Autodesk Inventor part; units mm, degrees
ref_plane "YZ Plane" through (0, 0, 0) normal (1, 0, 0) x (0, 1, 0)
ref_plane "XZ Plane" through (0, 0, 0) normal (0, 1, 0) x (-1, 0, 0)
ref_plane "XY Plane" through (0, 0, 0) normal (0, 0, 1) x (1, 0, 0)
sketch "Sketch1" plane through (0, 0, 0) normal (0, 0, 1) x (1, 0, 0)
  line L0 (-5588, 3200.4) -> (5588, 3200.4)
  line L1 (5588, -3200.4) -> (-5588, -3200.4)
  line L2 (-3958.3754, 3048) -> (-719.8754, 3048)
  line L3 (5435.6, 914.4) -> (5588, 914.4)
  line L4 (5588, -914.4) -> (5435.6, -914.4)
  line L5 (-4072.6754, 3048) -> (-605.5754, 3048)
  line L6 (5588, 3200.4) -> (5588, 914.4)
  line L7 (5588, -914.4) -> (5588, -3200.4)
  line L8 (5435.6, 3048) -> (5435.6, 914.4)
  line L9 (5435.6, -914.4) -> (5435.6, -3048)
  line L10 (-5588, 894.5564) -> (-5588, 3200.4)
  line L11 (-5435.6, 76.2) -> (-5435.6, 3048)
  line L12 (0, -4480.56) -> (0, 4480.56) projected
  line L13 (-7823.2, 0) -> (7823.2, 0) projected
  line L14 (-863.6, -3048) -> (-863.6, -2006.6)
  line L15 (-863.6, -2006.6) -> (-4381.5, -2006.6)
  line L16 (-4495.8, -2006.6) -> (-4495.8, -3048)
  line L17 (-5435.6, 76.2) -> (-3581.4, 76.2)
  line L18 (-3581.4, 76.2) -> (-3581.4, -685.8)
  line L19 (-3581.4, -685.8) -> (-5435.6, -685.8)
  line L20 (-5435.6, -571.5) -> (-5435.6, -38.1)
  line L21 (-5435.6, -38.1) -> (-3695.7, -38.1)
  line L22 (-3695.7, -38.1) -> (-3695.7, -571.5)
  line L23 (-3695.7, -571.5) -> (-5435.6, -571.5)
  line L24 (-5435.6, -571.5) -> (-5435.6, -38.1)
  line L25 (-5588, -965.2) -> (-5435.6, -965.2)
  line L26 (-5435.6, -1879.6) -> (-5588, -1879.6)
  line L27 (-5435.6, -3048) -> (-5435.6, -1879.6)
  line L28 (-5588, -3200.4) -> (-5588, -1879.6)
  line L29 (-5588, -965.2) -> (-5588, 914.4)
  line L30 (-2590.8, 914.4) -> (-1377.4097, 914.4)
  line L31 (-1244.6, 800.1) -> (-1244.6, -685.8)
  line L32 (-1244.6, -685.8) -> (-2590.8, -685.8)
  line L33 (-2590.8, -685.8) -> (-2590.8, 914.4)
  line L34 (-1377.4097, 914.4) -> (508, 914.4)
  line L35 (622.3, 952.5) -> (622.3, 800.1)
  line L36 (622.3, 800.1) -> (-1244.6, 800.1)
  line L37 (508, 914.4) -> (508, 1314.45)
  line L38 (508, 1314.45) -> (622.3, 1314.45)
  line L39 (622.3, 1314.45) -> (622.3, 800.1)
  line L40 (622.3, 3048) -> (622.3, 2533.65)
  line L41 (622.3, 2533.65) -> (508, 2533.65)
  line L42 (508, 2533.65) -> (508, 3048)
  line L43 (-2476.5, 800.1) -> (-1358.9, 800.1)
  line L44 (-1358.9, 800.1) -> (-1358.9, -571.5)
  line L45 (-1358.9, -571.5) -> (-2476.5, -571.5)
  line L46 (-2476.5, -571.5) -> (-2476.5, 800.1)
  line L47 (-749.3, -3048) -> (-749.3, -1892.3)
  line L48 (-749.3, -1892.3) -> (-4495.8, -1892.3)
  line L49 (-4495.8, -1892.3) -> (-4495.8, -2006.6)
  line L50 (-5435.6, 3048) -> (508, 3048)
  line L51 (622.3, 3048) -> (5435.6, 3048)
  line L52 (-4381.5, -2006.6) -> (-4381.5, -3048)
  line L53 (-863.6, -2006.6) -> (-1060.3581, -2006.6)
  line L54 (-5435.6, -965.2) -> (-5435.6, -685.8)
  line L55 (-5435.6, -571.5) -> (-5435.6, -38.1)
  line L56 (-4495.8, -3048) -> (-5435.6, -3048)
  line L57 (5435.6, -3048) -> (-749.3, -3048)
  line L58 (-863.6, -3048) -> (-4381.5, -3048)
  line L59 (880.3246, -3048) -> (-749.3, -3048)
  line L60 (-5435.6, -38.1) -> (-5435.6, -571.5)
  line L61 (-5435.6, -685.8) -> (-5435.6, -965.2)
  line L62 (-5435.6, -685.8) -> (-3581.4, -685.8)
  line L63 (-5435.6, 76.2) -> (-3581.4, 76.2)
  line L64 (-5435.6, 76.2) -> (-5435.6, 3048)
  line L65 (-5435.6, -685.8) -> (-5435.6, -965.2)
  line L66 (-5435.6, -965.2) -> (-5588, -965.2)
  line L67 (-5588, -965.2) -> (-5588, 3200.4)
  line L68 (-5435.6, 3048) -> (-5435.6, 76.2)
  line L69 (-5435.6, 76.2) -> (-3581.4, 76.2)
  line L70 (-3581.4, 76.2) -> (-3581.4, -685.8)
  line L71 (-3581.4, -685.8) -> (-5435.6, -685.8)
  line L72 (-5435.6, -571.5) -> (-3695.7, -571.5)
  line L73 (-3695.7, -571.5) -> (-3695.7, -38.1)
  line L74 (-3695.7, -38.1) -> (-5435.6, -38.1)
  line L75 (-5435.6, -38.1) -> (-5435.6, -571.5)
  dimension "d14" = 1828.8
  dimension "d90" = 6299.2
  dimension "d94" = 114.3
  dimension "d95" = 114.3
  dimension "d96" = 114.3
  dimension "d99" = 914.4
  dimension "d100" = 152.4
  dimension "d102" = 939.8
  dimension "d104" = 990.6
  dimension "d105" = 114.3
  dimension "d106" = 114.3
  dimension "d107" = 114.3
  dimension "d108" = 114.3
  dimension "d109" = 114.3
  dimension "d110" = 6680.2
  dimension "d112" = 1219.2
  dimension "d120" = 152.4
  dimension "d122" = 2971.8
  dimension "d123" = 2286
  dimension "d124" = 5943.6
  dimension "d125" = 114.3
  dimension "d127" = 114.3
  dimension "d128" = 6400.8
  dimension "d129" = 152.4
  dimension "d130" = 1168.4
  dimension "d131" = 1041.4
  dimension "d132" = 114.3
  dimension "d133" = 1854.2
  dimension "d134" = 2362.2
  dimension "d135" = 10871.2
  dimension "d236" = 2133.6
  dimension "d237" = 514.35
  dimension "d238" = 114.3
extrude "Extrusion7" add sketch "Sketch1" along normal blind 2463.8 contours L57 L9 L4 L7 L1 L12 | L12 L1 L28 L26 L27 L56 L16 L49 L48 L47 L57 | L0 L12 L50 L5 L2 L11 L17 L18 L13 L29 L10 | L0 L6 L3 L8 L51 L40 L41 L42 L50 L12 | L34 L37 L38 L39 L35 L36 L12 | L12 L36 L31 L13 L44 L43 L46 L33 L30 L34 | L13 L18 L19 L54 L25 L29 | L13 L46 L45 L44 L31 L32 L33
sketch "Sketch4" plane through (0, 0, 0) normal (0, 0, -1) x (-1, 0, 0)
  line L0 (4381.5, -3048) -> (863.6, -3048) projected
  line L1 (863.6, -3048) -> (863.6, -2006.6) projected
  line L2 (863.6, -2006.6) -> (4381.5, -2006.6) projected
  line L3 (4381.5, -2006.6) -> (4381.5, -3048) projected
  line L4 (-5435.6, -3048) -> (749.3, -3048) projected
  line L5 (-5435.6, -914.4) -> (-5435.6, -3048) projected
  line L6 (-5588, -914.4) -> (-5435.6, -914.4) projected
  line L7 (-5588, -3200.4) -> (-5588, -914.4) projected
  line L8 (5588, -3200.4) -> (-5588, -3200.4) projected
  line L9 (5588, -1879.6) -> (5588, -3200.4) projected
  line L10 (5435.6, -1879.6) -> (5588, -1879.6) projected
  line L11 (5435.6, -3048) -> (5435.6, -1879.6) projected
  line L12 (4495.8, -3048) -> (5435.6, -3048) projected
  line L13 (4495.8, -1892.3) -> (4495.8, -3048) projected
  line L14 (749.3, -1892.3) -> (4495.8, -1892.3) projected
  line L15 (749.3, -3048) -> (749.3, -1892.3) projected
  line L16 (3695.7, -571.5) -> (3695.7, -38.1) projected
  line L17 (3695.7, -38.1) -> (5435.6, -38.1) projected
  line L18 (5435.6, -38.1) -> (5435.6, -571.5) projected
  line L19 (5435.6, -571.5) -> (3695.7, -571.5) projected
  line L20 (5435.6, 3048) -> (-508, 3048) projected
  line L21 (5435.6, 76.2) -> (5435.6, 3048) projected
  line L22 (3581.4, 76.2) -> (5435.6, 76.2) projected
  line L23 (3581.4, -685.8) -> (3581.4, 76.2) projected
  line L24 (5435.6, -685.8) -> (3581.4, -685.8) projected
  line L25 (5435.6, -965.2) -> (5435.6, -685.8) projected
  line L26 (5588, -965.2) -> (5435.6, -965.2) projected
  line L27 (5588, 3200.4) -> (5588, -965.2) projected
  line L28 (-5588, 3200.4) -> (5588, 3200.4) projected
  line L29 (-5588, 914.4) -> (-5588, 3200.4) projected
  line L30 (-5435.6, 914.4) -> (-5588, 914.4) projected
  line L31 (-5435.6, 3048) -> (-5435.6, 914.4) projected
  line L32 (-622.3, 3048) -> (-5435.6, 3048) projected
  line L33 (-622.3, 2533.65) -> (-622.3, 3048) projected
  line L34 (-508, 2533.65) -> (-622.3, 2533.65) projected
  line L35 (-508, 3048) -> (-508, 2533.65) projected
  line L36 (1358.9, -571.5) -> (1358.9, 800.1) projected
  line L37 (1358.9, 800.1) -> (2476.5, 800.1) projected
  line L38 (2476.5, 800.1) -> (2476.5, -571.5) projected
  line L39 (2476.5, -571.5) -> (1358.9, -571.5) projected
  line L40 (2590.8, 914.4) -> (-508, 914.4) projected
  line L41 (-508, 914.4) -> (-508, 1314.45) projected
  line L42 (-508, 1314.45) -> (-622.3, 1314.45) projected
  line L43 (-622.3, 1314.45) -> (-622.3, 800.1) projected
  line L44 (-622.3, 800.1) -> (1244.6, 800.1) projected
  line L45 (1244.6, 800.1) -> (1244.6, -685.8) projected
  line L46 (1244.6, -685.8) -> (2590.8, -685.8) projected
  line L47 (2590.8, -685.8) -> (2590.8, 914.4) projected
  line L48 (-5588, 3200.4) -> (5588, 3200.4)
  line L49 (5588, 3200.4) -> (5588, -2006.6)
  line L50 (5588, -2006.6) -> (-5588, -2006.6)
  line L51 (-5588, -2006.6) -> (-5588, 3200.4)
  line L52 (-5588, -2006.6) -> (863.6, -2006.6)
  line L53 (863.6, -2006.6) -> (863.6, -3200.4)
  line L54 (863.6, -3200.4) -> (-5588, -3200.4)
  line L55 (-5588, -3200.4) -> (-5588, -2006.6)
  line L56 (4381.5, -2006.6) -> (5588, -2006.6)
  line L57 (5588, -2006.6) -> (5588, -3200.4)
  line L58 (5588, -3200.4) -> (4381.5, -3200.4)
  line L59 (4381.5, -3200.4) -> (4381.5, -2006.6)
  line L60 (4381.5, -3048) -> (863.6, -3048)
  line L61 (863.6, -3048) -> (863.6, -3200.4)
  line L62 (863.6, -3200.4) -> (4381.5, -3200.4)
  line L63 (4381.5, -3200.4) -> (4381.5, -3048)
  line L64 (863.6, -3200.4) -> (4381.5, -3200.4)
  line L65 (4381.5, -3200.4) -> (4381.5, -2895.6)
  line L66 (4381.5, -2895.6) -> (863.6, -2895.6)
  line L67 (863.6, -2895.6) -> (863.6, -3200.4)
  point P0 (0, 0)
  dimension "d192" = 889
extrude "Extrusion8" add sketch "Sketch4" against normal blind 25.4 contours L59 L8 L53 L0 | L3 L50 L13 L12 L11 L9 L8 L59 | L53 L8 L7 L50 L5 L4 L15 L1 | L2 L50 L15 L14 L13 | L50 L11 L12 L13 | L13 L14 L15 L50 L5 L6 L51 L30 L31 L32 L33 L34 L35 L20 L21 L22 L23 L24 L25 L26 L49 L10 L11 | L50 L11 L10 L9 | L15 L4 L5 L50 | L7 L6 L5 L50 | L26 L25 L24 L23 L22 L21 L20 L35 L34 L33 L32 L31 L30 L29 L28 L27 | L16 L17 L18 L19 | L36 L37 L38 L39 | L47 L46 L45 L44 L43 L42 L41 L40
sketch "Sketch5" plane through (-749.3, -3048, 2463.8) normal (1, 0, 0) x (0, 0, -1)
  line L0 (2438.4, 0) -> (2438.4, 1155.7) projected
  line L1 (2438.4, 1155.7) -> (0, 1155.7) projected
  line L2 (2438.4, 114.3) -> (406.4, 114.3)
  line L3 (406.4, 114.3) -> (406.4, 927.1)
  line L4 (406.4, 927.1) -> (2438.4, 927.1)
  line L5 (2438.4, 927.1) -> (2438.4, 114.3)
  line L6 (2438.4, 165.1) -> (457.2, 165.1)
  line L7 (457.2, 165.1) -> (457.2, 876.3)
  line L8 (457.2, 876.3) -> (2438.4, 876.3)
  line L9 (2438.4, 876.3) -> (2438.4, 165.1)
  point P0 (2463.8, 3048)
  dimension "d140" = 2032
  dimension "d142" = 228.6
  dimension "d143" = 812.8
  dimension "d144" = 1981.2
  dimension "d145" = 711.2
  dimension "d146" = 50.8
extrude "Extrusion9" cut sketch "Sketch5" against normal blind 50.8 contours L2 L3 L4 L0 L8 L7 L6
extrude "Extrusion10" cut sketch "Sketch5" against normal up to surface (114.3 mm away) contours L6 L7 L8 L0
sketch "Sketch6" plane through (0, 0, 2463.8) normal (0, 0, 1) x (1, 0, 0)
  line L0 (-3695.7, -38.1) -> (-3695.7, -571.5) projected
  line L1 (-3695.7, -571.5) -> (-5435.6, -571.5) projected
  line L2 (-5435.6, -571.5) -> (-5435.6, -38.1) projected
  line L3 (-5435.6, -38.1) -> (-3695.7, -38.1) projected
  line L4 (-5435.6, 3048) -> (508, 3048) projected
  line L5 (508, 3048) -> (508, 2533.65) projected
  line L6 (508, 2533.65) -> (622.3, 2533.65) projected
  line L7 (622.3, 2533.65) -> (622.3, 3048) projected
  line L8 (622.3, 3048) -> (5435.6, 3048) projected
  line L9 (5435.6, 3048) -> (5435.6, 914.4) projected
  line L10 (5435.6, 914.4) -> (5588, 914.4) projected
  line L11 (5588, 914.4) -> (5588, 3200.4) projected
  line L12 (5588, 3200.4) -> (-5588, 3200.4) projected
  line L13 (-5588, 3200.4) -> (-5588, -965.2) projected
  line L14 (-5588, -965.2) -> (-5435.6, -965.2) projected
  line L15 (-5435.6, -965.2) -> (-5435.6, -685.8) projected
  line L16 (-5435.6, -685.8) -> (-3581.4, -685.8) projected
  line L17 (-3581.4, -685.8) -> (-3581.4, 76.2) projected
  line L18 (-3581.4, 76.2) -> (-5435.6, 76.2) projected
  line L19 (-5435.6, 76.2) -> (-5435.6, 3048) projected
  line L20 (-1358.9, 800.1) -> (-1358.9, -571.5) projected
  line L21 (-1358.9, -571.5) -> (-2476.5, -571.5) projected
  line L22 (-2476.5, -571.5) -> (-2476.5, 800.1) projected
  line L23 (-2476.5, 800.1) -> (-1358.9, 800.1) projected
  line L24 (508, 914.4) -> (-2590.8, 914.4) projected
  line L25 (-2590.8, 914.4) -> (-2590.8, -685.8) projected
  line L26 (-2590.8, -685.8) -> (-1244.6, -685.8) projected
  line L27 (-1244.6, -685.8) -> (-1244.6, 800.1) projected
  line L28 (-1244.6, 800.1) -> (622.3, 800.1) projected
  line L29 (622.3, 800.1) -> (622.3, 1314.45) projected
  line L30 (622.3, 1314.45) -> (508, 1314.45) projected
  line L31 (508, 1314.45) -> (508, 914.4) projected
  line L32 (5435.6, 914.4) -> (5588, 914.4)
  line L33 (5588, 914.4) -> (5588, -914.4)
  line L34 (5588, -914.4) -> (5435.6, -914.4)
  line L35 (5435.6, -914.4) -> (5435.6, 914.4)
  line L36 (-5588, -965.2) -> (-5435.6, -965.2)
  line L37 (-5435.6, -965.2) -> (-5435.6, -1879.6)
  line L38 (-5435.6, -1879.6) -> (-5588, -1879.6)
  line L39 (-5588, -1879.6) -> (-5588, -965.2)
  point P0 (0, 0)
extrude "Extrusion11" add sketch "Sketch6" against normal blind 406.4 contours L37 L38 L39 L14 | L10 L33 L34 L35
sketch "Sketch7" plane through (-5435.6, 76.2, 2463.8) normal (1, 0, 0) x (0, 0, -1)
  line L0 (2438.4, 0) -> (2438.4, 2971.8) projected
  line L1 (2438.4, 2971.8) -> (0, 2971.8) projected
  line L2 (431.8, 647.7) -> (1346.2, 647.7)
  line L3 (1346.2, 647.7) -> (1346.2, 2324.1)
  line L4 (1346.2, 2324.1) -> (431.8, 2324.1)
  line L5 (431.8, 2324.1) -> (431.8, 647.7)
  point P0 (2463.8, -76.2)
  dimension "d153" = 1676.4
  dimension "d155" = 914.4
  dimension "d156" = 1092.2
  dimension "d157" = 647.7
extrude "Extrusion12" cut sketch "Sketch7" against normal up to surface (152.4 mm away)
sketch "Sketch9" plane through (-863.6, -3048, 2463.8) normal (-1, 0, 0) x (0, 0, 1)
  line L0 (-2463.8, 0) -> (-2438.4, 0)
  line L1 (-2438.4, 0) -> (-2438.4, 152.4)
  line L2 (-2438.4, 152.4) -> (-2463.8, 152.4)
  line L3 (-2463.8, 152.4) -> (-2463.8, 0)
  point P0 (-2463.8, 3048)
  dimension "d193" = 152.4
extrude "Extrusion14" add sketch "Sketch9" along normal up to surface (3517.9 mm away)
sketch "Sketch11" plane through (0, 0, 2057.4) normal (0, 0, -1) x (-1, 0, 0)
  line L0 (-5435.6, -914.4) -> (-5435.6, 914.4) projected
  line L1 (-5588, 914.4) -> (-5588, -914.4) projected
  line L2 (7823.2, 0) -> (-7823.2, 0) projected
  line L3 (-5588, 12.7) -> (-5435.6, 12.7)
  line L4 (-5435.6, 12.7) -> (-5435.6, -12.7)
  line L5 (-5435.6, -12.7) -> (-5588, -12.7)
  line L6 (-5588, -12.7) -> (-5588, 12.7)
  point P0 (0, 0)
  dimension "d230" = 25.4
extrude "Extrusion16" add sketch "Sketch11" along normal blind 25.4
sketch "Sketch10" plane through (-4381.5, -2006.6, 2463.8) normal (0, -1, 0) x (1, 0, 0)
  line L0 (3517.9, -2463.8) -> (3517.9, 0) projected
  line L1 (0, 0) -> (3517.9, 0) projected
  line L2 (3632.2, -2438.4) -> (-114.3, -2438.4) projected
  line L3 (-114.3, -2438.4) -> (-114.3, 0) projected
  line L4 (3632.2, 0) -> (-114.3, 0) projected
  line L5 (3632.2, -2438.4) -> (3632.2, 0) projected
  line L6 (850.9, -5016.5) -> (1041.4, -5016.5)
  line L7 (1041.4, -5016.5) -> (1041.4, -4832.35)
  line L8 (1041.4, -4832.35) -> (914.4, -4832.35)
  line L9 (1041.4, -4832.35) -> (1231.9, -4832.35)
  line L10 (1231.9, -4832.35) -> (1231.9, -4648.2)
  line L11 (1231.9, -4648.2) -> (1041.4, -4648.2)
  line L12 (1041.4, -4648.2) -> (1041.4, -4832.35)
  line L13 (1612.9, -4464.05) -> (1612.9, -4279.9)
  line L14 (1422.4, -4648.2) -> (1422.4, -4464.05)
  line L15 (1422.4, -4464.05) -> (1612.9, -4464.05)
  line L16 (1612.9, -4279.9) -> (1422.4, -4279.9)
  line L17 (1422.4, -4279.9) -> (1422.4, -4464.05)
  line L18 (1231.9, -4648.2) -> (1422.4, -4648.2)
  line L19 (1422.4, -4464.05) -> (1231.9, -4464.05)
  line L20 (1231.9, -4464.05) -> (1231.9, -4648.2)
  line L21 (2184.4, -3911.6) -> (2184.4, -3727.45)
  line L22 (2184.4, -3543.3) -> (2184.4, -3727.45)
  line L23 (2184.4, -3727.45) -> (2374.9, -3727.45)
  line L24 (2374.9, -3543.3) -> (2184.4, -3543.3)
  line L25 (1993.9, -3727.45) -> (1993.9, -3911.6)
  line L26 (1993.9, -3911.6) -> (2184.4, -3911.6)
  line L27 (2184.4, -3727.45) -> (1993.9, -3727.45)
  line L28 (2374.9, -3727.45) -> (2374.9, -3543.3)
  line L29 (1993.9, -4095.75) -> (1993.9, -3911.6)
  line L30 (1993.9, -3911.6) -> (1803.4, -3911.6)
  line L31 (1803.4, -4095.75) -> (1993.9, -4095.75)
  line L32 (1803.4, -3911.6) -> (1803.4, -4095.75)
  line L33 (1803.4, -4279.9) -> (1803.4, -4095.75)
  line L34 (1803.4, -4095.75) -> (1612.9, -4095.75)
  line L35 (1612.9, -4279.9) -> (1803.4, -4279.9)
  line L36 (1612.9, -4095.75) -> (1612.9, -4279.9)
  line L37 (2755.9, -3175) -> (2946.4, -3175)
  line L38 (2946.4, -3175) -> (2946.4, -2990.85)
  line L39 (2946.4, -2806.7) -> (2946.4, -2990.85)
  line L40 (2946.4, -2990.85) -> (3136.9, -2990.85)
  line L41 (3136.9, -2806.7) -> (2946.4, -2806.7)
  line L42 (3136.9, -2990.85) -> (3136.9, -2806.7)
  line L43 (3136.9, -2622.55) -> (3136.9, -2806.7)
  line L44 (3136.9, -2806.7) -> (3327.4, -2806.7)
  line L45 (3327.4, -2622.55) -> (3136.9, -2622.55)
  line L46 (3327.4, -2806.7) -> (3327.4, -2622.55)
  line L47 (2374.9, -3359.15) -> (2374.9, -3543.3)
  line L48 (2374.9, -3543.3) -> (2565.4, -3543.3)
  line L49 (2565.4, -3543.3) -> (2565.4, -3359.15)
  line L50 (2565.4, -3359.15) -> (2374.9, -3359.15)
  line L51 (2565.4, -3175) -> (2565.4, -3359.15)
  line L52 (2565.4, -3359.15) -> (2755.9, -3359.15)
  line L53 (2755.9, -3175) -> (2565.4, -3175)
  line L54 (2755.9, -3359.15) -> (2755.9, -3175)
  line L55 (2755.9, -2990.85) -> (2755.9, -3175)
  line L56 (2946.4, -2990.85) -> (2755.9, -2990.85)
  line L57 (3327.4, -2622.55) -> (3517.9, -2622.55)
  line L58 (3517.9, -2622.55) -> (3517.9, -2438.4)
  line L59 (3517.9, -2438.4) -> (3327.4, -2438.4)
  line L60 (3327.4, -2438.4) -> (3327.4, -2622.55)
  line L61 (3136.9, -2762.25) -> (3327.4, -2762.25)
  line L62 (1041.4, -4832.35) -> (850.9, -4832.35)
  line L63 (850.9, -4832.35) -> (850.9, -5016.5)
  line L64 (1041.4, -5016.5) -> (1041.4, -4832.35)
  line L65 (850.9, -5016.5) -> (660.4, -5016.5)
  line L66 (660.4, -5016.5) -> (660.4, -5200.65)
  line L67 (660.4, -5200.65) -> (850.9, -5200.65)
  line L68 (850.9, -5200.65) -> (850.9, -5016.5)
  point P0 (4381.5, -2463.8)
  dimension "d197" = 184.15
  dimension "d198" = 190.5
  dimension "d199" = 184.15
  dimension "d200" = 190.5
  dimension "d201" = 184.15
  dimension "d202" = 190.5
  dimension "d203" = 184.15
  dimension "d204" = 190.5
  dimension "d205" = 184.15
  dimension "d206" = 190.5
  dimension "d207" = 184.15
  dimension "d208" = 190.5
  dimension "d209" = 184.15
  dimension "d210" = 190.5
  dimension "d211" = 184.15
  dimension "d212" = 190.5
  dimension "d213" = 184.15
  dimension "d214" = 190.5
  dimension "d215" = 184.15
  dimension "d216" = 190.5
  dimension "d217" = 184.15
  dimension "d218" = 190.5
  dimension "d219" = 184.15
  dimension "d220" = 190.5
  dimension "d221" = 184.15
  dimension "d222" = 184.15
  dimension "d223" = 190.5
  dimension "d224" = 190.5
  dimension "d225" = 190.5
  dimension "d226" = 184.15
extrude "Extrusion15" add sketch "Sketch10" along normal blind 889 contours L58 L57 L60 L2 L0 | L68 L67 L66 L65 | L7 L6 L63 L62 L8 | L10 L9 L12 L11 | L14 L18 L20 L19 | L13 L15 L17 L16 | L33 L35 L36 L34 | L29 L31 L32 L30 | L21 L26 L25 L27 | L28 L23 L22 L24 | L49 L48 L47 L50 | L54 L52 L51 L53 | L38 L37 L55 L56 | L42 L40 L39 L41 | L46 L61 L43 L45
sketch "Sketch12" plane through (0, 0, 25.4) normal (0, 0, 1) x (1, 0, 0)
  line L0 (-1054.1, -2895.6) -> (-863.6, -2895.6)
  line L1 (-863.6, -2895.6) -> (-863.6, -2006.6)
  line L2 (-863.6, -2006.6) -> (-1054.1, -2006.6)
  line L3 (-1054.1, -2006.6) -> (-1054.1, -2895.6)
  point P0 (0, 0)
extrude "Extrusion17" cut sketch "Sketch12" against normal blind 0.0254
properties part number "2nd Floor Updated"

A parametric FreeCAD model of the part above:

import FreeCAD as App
import Part
import Sketcher

V = App.Vector
Q = App.Units.Quantity


def add_polygon(sketch, points):
    """Adds a closed chain of lines whose ends are joined by coincident constraints."""
    first, n = sketch.GeometryCount, len(points)
    for a, b in zip(points, points[1:] + points[:1]):
        sketch.addGeometry(Part.LineSegment(App.Vector(*a, 0), App.Vector(*b, 0)), False)
    for i in range(n):
        sketch.addConstraint(Sketcher.Constraint("Coincident", first + i, 2, first + (i + 1) % n, 1))

doc = App.newDocument("Part")
body = doc.addObject("PartDesign::Body", "Body")
body.AllowCompound = True

sketch1 = body.newObject("Sketcher::SketchObject", "Sketch")
sketch1.AttachmentSupport = (doc.getObject("XY_Plane"), [""])
sketch1.MapMode = "FlatFace"
add_polygon(sketch1, [(-749.3, -3048), (-749.3, -1892.3), (-4495.8, -1892.3), (-4495.8, -3048), (-5435.6, -3048), (-5435.6, -1879.6), (-5588, -1879.6), (-5588, -3200.4), (5588, -3200.4), (5588, -914.4), (5435.6, -914.4), (5435.6, -3048)])
add_polygon(sketch1, [(-863.6, -3048), (-4381.5, -3048), (-4381.5, -2006.6), (-863.6, -2006.6)])
add_polygon(sketch1, [(-5588, 3200.4), (-5588, -965.2), (-5435.6, -965.2), (-5435.6, -685.8), (-3581.4, -685.8), (-3581.4, 76.2), (-5435.6, 76.2), (-5435.6, 3048), (508, 3048), (508, 2533.65), (622.3, 2533.65), (622.3, 3048), (5435.6, 3048), (5435.6, 914.4), (5588, 914.4), (5588, 3200.4)])
add_polygon(sketch1, [(-5435.6, -571.5), (-5435.6, -38.1), (-3695.7, -38.1), (-3695.7, -571.5)])
add_polygon(sketch1, [(508, 914.4), (-2590.8, 914.4), (-2590.8, -685.8), (-1244.6, -685.8), (-1244.6, 800.1), (622.3, 800.1), (622.3, 1314.45), (508, 1314.45)])
add_polygon(sketch1, [(-1358.9, 800.1), (-1358.9, -571.5), (-2476.5, -571.5), (-2476.5, 800.1)])
sketch1.addConstraint([
    Sketcher.Constraint("Vertical", 0),
    Sketcher.Constraint("Horizontal", 1),
    Sketcher.Constraint("Vertical", 2),
    Sketcher.Constraint("Horizontal", 3),
    Sketcher.Constraint("Vertical", 4),
    Sketcher.Constraint("Horizontal", 5),
    Sketcher.Constraint("Vertical", 6),
    Sketcher.Constraint("Horizontal", 7),
    Sketcher.Constraint("Vertical", 8),
    Sketcher.Constraint("Horizontal", 9),
    Sketcher.Constraint("Vertical", 10),
    Sketcher.Constraint("Horizontal", 11),
    Sketcher.Constraint("Horizontal", 12),
    Sketcher.Constraint("Vertical", 13),
    Sketcher.Constraint("Horizontal", 14),
    Sketcher.Constraint("Vertical", 15),
    Sketcher.Constraint("Vertical", 16),
    Sketcher.Constraint("Horizontal", 17),
    Sketcher.Constraint("Vertical", 18),
    Sketcher.Constraint("Horizontal", 19),
    Sketcher.Constraint("Vertical", 20),
    Sketcher.Constraint("Horizontal", 21),
    Sketcher.Constraint("Vertical", 22),
    Sketcher.Constraint("Horizontal", 23),
    Sketcher.Constraint("Vertical", 24),
    Sketcher.Constraint("Horizontal", 25),
    Sketcher.Constraint("Vertical", 26),
    Sketcher.Constraint("Horizontal", 27),
    Sketcher.Constraint("Vertical", 28),
    Sketcher.Constraint("Horizontal", 29),
    Sketcher.Constraint("Vertical", 30),
    Sketcher.Constraint("Horizontal", 31),
    Sketcher.Constraint("Vertical", 32),
    Sketcher.Constraint("Horizontal", 33),
    Sketcher.Constraint("Vertical", 34),
    Sketcher.Constraint("Horizontal", 35),
    Sketcher.Constraint("Horizontal", 36),
    Sketcher.Constraint("Vertical", 37),
    Sketcher.Constraint("Horizontal", 38),
    Sketcher.Constraint("Vertical", 39),
    Sketcher.Constraint("Horizontal", 40),
    Sketcher.Constraint("Vertical", 41),
    Sketcher.Constraint("Horizontal", 42),
    Sketcher.Constraint("Vertical", 43),
    Sketcher.Constraint("Vertical", 44),
    Sketcher.Constraint("Horizontal", 45),
    Sketcher.Constraint("Vertical", 46),
    Sketcher.Constraint("Horizontal", 47),
    Sketcher.Constraint("Symmetric", 10, 2, 22, 2, -1, 1),
    Sketcher.Constraint("Symmetric", 3, 2, 27, 2, -1, 1),
    Sketcher.Constraint("Symmetric", 6, 2, 30, 2, -1, 1),
    Sketcher.Constraint("Symmetric", 3, 2, 10, 2, -2),
    Sketcher.Constraint("Symmetric", 8, 2, 29, 2, -1),
    Sketcher.Constraint("Horizontal", 11, 2, 12, 2),
    Sketcher.Constraint("Horizontal", 29, 2, 36, 2),
    Sketcher.Constraint("Horizontal", 19, 2, 37, 2),
    Sketcher.Constraint("Horizontal", 35, 2, 44, 2),
    Sketcher.Constraint("Horizontal", 40, 2, 46, 2),
    Sketcher.Constraint("Vertical", 6, 2, 16, 2),
    Sketcher.Constraint("Vertical", 4, 2, 17, 2),
    Sketcher.Constraint("Vertical", 22, 2, 32, 2),
    Sketcher.Constraint("Vertical", 26, 2, 40, 2),
    Sketcher.Constraint("Vertical", 24, 2, 42, 2),
    Sketcher.Constraint("Equal", 26, 41),
    Sketcher.Constraint("DistanceX", 3, 2, 3, 1, Q("37 in")),
    Sketcher.Constraint("DistanceX", 5, 2, 5, 1, Q("6 in")),
    Sketcher.Constraint("DistanceX", 19, 1, 19, 2, Q("73 in")),
    Sketcher.Constraint("DistanceX", 23, 1, 23, 2, Q("234 in")),
    Sketcher.Constraint("DistanceY", 4, 1, 4, 2, Q("46 in")),
    Sketcher.Constraint("DistanceY", 8, 1, 8, 2, Q("90 in")),
    Sketcher.Constraint("DistanceY", 10, 2, 10, 1, Q("84 in")),
    Sketcher.Constraint("DistanceY", 13, 1, 13, 2, Q("41 in")),
    Sketcher.Constraint("DistanceY", 22, 1, 22, 2, Q("117 in")),
    Sketcher.Constraint("DistanceX", 25, 1, 25, 2, Q("4.5 in")),
    Sketcher.Constraint("DistanceY", 8, 2, -1, 1, Q("36 in")),
    Sketcher.Constraint("DistanceY", 5, 2, 16, 2, Q("36 in")),
    Sketcher.Constraint("DistanceX", 20, 2, 36, 2, Q("39 in")),
    Sketcher.Constraint("DistanceY", 41, 2, 25, 2, Q("48 in")),
    Sketcher.Constraint("DistanceX", 34, 2, 45, 2, Q("48 in")),
    Sketcher.Constraint("DistanceY", 24, 2, 24, 1, Q("20.25 in")),
    Sketcher.Constraint("DistanceX", 2, 2, 12, 2, Q("4.5 in")),
    Sketcher.Constraint("DistanceY", 13, 2, 1, 2, Q("4.5 in")),
    Sketcher.Constraint("DistanceX", 14, 2, 0, 2, Q("4.5 in")),
    Sketcher.Constraint("DistanceY", 32, 2, 21, 2, Q("4.5 in")),
    Sketcher.Constraint("DistanceX", 33, 2, 20, 2, Q("4.5 in")),
    Sketcher.Constraint("DistanceY", 19, 2, 34, 2, Q("4.5 in")),
    Sketcher.Constraint("DistanceX", 44, 2, 38, 2, Q("4.5 in")),
    Sketcher.Constraint("DistanceX", 7, 1, 7, 2, Q("440 in")),
    Sketcher.Constraint("DistanceX", 38, 1, 38, 2, Q("53 in")),
    Sketcher.Constraint("DistanceY", 18, 1, 18, 2, Q("11 in")),
    Sketcher.Constraint("DistanceX", 1, 2, 1, 1, Q("147.5 in")),
])
pad1 = body.newObject("PartDesign::Pad", "Pad")
pad1.Profile = sketch1
pad1.Length = Q("97 in")

sketch2 = body.newObject("Sketcher::SketchObject", "Sketch001")
sketch2.AttachmentSupport = (doc.getObject("XY_Plane"), [""])
sketch2.MapMode = "FlatFace"
add_polygon(sketch2, [(-5588, -3200.4), (-5588, 3200.4), (5588, 3200.4), (5588, -3200.4)])
add_polygon(sketch2, [(-4381.5, -3048), (-863.6, -3048), (-863.6, -2006.6), (-4381.5, -2006.6)])
sketch2.addConstraint([
    Sketcher.Constraint("Vertical", 0),
    Sketcher.Constraint("Horizontal", 1),
    Sketcher.Constraint("Vertical", 2),
    Sketcher.Constraint("Horizontal", 3),
    Sketcher.Constraint("Horizontal", 4),
    Sketcher.Constraint("Vertical", 5),
    Sketcher.Constraint("Horizontal", 6),
    Sketcher.Constraint("Vertical", 7),
    Sketcher.Constraint("Symmetric", 0, 2, 2, 2, -1, 1),
    Sketcher.Constraint("DistanceX", 1, 1, 1, 2, Q("440 in")),
    Sketcher.Constraint("DistanceY", 0, 1, 0, 2, Q("252 in")),
    Sketcher.Constraint("DistanceY", 5, 1, 5, 2, Q("41 in")),
    Sketcher.Constraint("DistanceX", 4, 1, 4, 2, Q("138.5 in")),
    Sketcher.Constraint("DistanceX", 4, 2, -1, 1, Q("34 in")),
    Sketcher.Constraint("DistanceY", 4, 2, -1, 1, Q("120 in")),
])
pad2 = body.newObject("PartDesign::Pad", "Pad001")
pad2.Profile = sketch2
pad2.Length = Q("1 in")

sketch3 = body.newObject("Sketcher::SketchObject", "Sketch002")
sketch3.AttachmentSupport = (doc.getObject("YZ_Plane"), [""])
sketch3.MapMode = "FlatFace"
sketch3.AttachmentOffset = App.Placement(V(0, 0, -29.5 * 25.4), App.Rotation())
add_polygon(sketch3, [(-2933.7, 2057.4), (-2933.7, 25.4), (-2882.9, 25.4), (-2882.9, 2006.6), (-2171.7, 2006.6), (-2171.7, 25.4), (-2120.9, 25.4), (-2120.9, 2057.4)])
sketch3.addConstraint([
    Sketcher.Constraint("Vertical", 0),
    Sketcher.Constraint("Horizontal", 1),
    Sketcher.Constraint("Vertical", 2),
    Sketcher.Constraint("Horizontal", 3),
    Sketcher.Constraint("Vertical", 4),
    Sketcher.Constraint("Horizontal", 5),
    Sketcher.Constraint("Vertical", 6),
    Sketcher.Constraint("Horizontal", 7),
    Sketcher.Constraint("Horizontal", 1, 2, 4, 2),
    Sketcher.Constraint("Equal", 1, 5),
    Sketcher.Constraint("DistanceX", 1, 1, 1, 2, Q("2 in")),
    Sketcher.Constraint("DistanceX", 3, 1, 3, 2, Q("28 in")),
    Sketcher.Constraint("DistanceY", 0, 2, 0, 1, Q("80 in")),
    Sketcher.Constraint("DistanceY", 2, 1, 2, 2, Q("78 in")),
    Sketcher.Constraint("DistanceY", -1, 1, 0, 2, Q("1 in")),
    Sketcher.Constraint("DistanceX", 0, 2, -1, 1, Q("115.5 in")),
])
pocket1 = body.newObject("PartDesign::Pocket", "Pocket")
pocket1.Profile = sketch3
pocket1.Length = Q("2 in")

sketch4 = body.newObject("Sketcher::SketchObject", "Sketch003")
sketch4.AttachmentSupport = (doc.getObject("YZ_Plane"), [""])
sketch4.MapMode = "FlatFace"
sketch4.AttachmentOffset = App.Placement(V(0, 0, -29.5 * 25.4), App.Rotation())
add_polygon(sketch4, [(-2882.9, 2006.6), (-2882.9, 25.4), (-2171.7, 25.4), (-2171.7, 2006.6)])
sketch4.addConstraint([
    Sketcher.Constraint("Vertical", 0),
    Sketcher.Constraint("Horizontal", 1),
    Sketcher.Constraint("Vertical", 2),
    Sketcher.Constraint("Horizontal", 3),
    Sketcher.Constraint("DistanceX", 1, 1, 1, 2, Q("28 in")),
    Sketcher.Constraint("DistanceY", 0, 2, 0, 1, Q("78 in")),
    Sketcher.Constraint("DistanceY", -1, 1, 0, 2, Q("1 in")),
    Sketcher.Constraint("DistanceX", 0, 2, -1, 1, Q("113.5 in")),
])
pocket2 = body.newObject("PartDesign::Pocket", "Pocket001")
pocket2.Profile = sketch4
pocket2.Length = Q("4.5 in")

sketch5 = body.newObject("Sketcher::SketchObject", "Sketch004")
sketch5.AttachmentSupport = (doc.getObject("XY_Plane"), [""])
sketch5.MapMode = "FlatFace"
sketch5.AttachmentOffset = App.Placement(V(0, 0, 97 * 25.4), App.Rotation())
add_polygon(sketch5, [(-5435.6, -1879.6), (-5435.6, -965.2), (-5588, -965.2), (-5588, -1879.6)])
add_polygon(sketch5, [(5588, 914.4), (5435.6, 914.4), (5435.6, -914.4), (5588, -914.4)])
sketch5.addConstraint([
    Sketcher.Constraint("Vertical", 0),
    Sketcher.Constraint("Horizontal", 1),
    Sketcher.Constraint("Vertical", 2),
    Sketcher.Constraint("Horizontal", 3),
    Sketcher.Constraint("Horizontal", 4),
    Sketcher.Constraint("Vertical", 5),
    Sketcher.Constraint("Horizontal", 6),
    Sketcher.Constraint("Vertical", 7),
    Sketcher.Constraint("Equal", 3, 4),
    Sketcher.Constraint("DistanceX", 1, 2, 1, 1, Q("6 in")),
    Sketcher.Constraint("DistanceY", 0, 1, 0, 2, Q("36 in")),
    Sketcher.Constraint("DistanceY", 5, 2, 5, 1, Q("72 in")),
    Sketcher.Constraint("DistanceX", 0, 2, -1, 1, Q("214 in")),
    Sketcher.Constraint("DistanceY", 0, 2, -1, 1, Q("38 in")),
    Sketcher.Constraint("DistanceX", -1, 1, 4, 2, Q("214 in")),
    Sketcher.Constraint("DistanceY", -1, 1, 4, 2, Q("36 in")),
])
pad3 = body.newObject("PartDesign::Pad", "Pad002")
pad3.Profile = sketch5
pad3.Length = Q("16 in")
pad3.Reversed = True

sketch6 = body.newObject("Sketcher::SketchObject", "Sketch005")
sketch6.AttachmentSupport = (doc.getObject("YZ_Plane"), [""])
sketch6.MapMode = "FlatFace"
sketch6.AttachmentOffset = App.Placement(V(0, 0, -214 * 25.4), App.Rotation())
add_polygon(sketch6, [(2400.3, 2032), (723.9, 2032), (723.9, 1117.6), (2400.3, 1117.6)])
sketch6.addConstraint([
    Sketcher.Constraint("Horizontal", 0),
    Sketcher.Constraint("Vertical", 1),
    Sketcher.Constraint("Horizontal", 2),
    Sketcher.Constraint("Vertical", 3),
    Sketcher.Constraint("DistanceX", 0, 2, 0, 1, Q("66 in")),
    Sketcher.Constraint("DistanceY", 1, 2, 1, 1, Q("36 in")),
    Sketcher.Constraint("DistanceY", -1, 1, 0, 2, Q("80 in")),
    Sketcher.Constraint("DistanceX", -1, 1, 0, 2, Q("28.5 in")),
])
pocket3 = body.newObject("PartDesign::Pocket", "Pocket002")
pocket3.Profile = sketch6
pocket3.Length = Q("6 in")

sketch7 = body.newObject("Sketcher::SketchObject", "Sketch006")
sketch7.AttachmentSupport = (doc.getObject("YZ_Plane"), [""])
sketch7.MapMode = "FlatFace"
sketch7.AttachmentOffset = App.Placement(V(0, 0, -34 * 25.4), App.Rotation())
add_polygon(sketch7, [(-2895.6, 0), (-3048, 0), (-3048, 25.4), (-2895.6, 25.4)])
sketch7.addConstraint([
    Sketcher.Constraint("Horizontal", 0),
    Sketcher.Constraint("Vertical", 1),
    Sketcher.Constraint("Horizontal", 2),
    Sketcher.Constraint("Vertical", 3),
    Sketcher.Constraint("PointOnObject", 0, 2, -1),
    Sketcher.Constraint("DistanceX", 0, 2, 0, 1, Q("6 in")),
    Sketcher.Constraint("DistanceY", 1, 1, 1, 2, Q("1 in")),
    Sketcher.Constraint("DistanceX", 0, 2, -1, 1, Q("120 in")),
])
pad4 = body.newObject("PartDesign::Pad", "Pad003")
pad4.Profile = sketch7
pad4.Length = Q("138.5 in")
pad4.Reversed = True

sketch8 = body.newObject("Sketcher::SketchObject", "Sketch007")
sketch8.AttachmentSupport = (doc.getObject("XY_Plane"), [""])
sketch8.MapMode = "FlatFace"
sketch8.AttachmentOffset = App.Placement(V(0, 0, 81 * 25.4), App.Rotation())
add_polygon(sketch8, [(5588, -12.7), (5435.6, -12.7), (5435.6, 12.7), (5588, 12.7)])
sketch8.addConstraint([
    Sketcher.Constraint("Horizontal", 0),
    Sketcher.Constraint("Vertical", 1),
    Sketcher.Constraint("Horizontal", 2),
    Sketcher.Constraint("Vertical", 3),
    Sketcher.Constraint("DistanceY", 1, 1, 1, 2, Q("1 in")),
    Sketcher.Constraint("DistanceX", 0, 2, 0, 1, Q("6 in")),
    Sketcher.Constraint("DistanceX", -1, 1, 0, 2, Q("214 in")),
    Sketcher.Constraint("DistanceY", 0, 2, -1, 1, Q("0.5 in")),
])
pad5 = body.newObject("PartDesign::Pad", "Pad004")
pad5.Profile = sketch8
pad5.Length = Q("1 in")
pad5.Reversed = True

sketch9 = body.newObject("Sketcher::SketchObject", "Sketch008")
sketch9.AttachmentSupport = (doc.getObject("XZ_Plane"), [""])
sketch9.MapMode = "FlatFace"
sketch9.AttachmentOffset = App.Placement(V(0, 0, 79 * 25.4), App.Rotation())
add_polygon(sketch9, [(-863.6, -158.75), (-863.6, 25.4), (-1054.1, 25.4), (-1054.1, -158.75)])
add_polygon(sketch9, [(-3530.6, -2736.85), (-3530.6, -2552.7), (-3721.1, -2552.7), (-3721.1, -2736.85)])
add_polygon(sketch9, [(-3340.1, -2552.7), (-3340.1, -2368.55), (-3530.6, -2368.55), (-3530.6, -2552.7)])
add_polygon(sketch9, [(-3149.6, -2368.55), (-3149.6, -2184.4), (-3340.1, -2184.4), (-3340.1, -2368.55)])
add_polygon(sketch9, [(-2959.1, -2184.4), (-2959.1, -2000.25), (-3149.6, -2000.25), (-3149.6, -2184.4)])
add_polygon(sketch9, [(-2768.6, -2000.25), (-2768.6, -1816.1), (-2959.1, -1816.1), (-2959.1, -2000.25)])
add_polygon(sketch9, [(-2578.1, -1816.1), (-2578.1, -1631.95), (-2768.6, -1631.95), (-2768.6, -1816.1)])
add_polygon(sketch9, [(-2387.6, -1631.95), (-2387.6, -1447.8), (-2578.1, -1447.8), (-2578.1, -1631.95)])
add_polygon(sketch9, [(-2197.1, -1447.8), (-2197.1, -1263.65), (-2387.6, -1263.65), (-2387.6, -1447.8)])
add_polygon(sketch9, [(-2006.6, -1263.65), (-2006.6, -1079.5), (-2197.1, -1079.5), (-2197.1, -1263.65)])
add_polygon(sketch9, [(-1816.1, -1079.5), (-1816.1, -895.35), (-2006.6, -895.35), (-2006.6, -1079.5)])
add_polygon(sketch9, [(-1625.6, -895.35), (-1625.6, -711.2), (-1816.1, -711.2), (-1816.1, -895.35)])
add_polygon(sketch9, [(-1435.1, -711.2), (-1435.1, -527.05), (-1625.6, -527.05), (-1625.6, -711.2)])
add_polygon(sketch9, [(-1244.6, -527.05), (-1244.6, -342.9), (-1435.1, -342.9), (-1435.1, -527.05)])
add_polygon(sketch9, [(-1054.1, -298.45), (-1054.1, -158.75), (-1244.6, -158.75), (-1244.6, -298.45)])
sketch9.addConstraint([
    Sketcher.Constraint("Vertical", 0),
    Sketcher.Constraint("Horizontal", 1),
    Sketcher.Constraint("Vertical", 2),
    Sketcher.Constraint("Horizontal", 3),
    Sketcher.Constraint("Vertical", 4),
    Sketcher.Constraint("Horizontal", 5),
    Sketcher.Constraint("Vertical", 6),
    Sketcher.Constraint("Horizontal", 7),
    Sketcher.Constraint("Vertical", 8),
    Sketcher.Constraint("Horizontal", 9),
    Sketcher.Constraint("Vertical", 10),
    Sketcher.Constraint("Horizontal", 11),
    Sketcher.Constraint("Vertical", 12),
    Sketcher.Constraint("Horizontal", 13),
    Sketcher.Constraint("Vertical", 14),
    Sketcher.Constraint("Horizontal", 15),
    Sketcher.Constraint("Vertical", 16),
    Sketcher.Constraint("Horizontal", 17),
    Sketcher.Constraint("Vertical", 18),
    Sketcher.Constraint("Horizontal", 19),
    Sketcher.Constraint("Vertical", 20),
    Sketcher.Constraint("Horizontal", 21),
    Sketcher.Constraint("Vertical", 22),
    Sketcher.Constraint("Horizontal", 23),
    Sketcher.Constraint("Vertical", 24),
    Sketcher.Constraint("Horizontal", 25),
    Sketcher.Constraint("Vertical", 26),
    Sketcher.Constraint("Horizontal", 27),
    Sketcher.Constraint("Vertical", 28),
    Sketcher.Constraint("Horizontal", 29),
    Sketcher.Constraint("Vertical", 30),
    Sketcher.Constraint("Horizontal", 31),
    Sketcher.Constraint("Vertical", 32),
    Sketcher.Constraint("Horizontal", 33),
    Sketcher.Constraint("Vertical", 34),
    Sketcher.Constraint("Horizontal", 35),
    Sketcher.Constraint("Vertical", 36),
    Sketcher.Constraint("Horizontal", 37),
    Sketcher.Constraint("Vertical", 38),
    Sketcher.Constraint("Horizontal", 39),
    Sketcher.Constraint("Vertical", 40),
    Sketcher.Constraint("Horizontal", 41),
    Sketcher.Constraint("Vertical", 42),
    Sketcher.Constraint("Horizontal", 43),
    Sketcher.Constraint("Vertical", 44),
    Sketcher.Constraint("Horizontal", 45),
    Sketcher.Constraint("Vertical", 46),
    Sketcher.Constraint("Horizontal", 47),
    Sketcher.Constraint("Vertical", 48),
    Sketcher.Constraint("Horizontal", 49),
    Sketcher.Constraint("Vertical", 50),
    Sketcher.Constraint("Horizontal", 51),
    Sketcher.Constraint("Vertical", 52),
    Sketcher.Constraint("Horizontal", 53),
    Sketcher.Constraint("Vertical", 54),
    Sketcher.Constraint("Horizontal", 55),
    Sketcher.Constraint("Vertical", 56),
    Sketcher.Constraint("Horizontal", 57),
    Sketcher.Constraint("Vertical", 58),
    Sketcher.Constraint("Horizontal", 59),
    Sketcher.Constraint("Coincident", 10, 2, 4, 2),
    Sketcher.Constraint("Coincident", 14, 2, 8, 2),
    Sketcher.Constraint("Coincident", 18, 2, 12, 2),
    Sketcher.Constraint("Coincident", 22, 2, 16, 2),
    Sketcher.Constraint("Coincident", 26, 2, 20, 2),
    Sketcher.Constraint("Coincident", 30, 2, 24, 2),
    Sketcher.Constraint("Coincident", 34, 2, 28, 2),
    Sketcher.Constraint("Coincident", 38, 2, 32, 2),
    Sketcher.Constraint("Coincident", 42, 2, 36, 2),
    Sketcher.Constraint("Coincident", 46, 2, 40, 2),
    Sketcher.Constraint("Coincident", 50, 2, 44, 2),
    Sketcher.Constraint("Coincident", 54, 2, 48, 2),
    Sketcher.Constraint("Coincident", 56, 2, 2, 2),
    Sketcher.Constraint("Vertical", 55, 2, 57, 2),
    Sketcher.Constraint("Equal", 3, 5),
    Sketcher.Constraint("Equal", 7, 9),
    Sketcher.Constraint("Equal", 11, 13),
    Sketcher.Constraint("Equal", 15, 17),
    Sketcher.Constraint("Equal", 19, 21),
    Sketcher.Constraint("Equal", 23, 25),
    Sketcher.Constraint("Equal", 27, 29),
    Sketcher.Constraint("Equal", 31, 33),
    Sketcher.Constraint("Equal", 35, 37),
    Sketcher.Constraint("Equal", 39, 41),
    Sketcher.Constraint("Equal", 43, 45),
    Sketcher.Constraint("Equal", 47, 49),
    Sketcher.Constraint("Equal", 51, 53),
    Sketcher.Constraint("Equal", 55, 57),
    Sketcher.Constraint("Equal", 2, 4),
    Sketcher.Constraint("Equal", 6, 8),
    Sketcher.Constraint("Equal", 10, 12),
    Sketcher.Constraint("Equal", 14, 16),
    Sketcher.Constraint("Equal", 18, 20),
    Sketcher.Constraint("Equal", 22, 24),
    Sketcher.Constraint("Equal", 26, 28),
    Sketcher.Constraint("Equal", 30, 32),
    Sketcher.Constraint("Equal", 34, 36),
    Sketcher.Constraint("Equal", 38, 40),
    Sketcher.Constraint("Equal", 42, 44),
    Sketcher.Constraint("Equal", 46, 48),
    Sketcher.Constraint("Equal", 50, 52),
    Sketcher.Constraint("DistanceX", 1, 2, 1, 1, Q("7.5 in")),
    Sketcher.Constraint("DistanceY", 0, 1, 0, 2, Q("7.25 in")),
    Sketcher.Constraint("DistanceY", 52, 2, 2, 2, Q("7.25 in")),
    Sketcher.Constraint("DistanceY", 56, 1, 56, 2, Q("5.5 in")),
    Sketcher.Constraint("DistanceX", 0, 2, -1, 1, Q("34 in")),
    Sketcher.Constraint("DistanceY", -1, 1, 0, 2, Q("1 in")),
])
pad6 = body.newObject("PartDesign::Pad", "Pad005")
pad6.Profile = sketch9
pad6.Length = Q("35 in")

sketch10 = body.newObject("Sketcher::SketchObject", "Sketch009")
sketch10.AttachmentSupport = (doc.getObject("XY_Plane"), [""])
sketch10.MapMode = "FlatFace"
sketch10.AttachmentOffset = App.Placement(V(0, 0, 1 * 25.4), App.Rotation())
add_polygon(sketch10, [(-1054.1, -2006.6), (-1054.1, -2895.6), (-863.6, -2895.6), (-863.6, -2006.6)])
sketch10.addConstraint([
    Sketcher.Constraint("Vertical", 0),
    Sketcher.Constraint("Horizontal", 1),
    Sketcher.Constraint("Vertical", 2),
    Sketcher.Constraint("Horizontal", 3),
    Sketcher.Constraint("DistanceY", 0, 2, 0, 1, Q("35 in")),
    Sketcher.Constraint("DistanceX", 1, 1, 1, 2, Q("7.5 in")),
    Sketcher.Constraint("DistanceY", 0, 2, -1, 1, Q("114 in")),
    Sketcher.Constraint("DistanceX", 1, 2, -1, 1, Q("34 in")),
])
pocket4 = body.newObject("PartDesign::Pocket", "Pocket003")
pocket4.Profile = sketch10
pocket4.Length = Q("0.001 in")

doc.recompute()
